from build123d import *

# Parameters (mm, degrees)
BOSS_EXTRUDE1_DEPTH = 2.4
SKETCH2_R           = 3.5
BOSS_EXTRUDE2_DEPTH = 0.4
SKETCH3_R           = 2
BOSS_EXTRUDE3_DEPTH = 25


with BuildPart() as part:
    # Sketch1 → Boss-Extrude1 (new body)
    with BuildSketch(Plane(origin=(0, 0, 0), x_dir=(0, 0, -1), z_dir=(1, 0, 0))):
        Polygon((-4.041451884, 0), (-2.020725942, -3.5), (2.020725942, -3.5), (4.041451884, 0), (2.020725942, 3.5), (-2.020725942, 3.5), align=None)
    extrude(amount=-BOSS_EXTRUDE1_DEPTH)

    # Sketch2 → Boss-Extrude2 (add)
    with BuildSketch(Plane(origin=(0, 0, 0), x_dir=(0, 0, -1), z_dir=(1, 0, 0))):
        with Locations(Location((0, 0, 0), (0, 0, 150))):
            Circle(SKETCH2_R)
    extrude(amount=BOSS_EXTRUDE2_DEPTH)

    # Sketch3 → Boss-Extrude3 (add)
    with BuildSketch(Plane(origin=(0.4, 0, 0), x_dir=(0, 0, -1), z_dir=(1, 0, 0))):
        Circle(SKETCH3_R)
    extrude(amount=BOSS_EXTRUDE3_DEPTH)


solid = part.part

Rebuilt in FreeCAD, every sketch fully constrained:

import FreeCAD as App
import Part
import Sketcher

V = App.Vector
Q = App.Units.Quantity


def add_polygon(sketch, points):
    """Adds a closed chain of lines whose ends are joined by coincident constraints."""
    first, n = sketch.GeometryCount, len(points)
    for a, b in zip(points, points[1:] + points[:1]):
        sketch.addGeometry(Part.LineSegment(App.Vector(*a, 0), App.Vector(*b, 0)), False)
    for i in range(n):
        sketch.addConstraint(Sketcher.Constraint("Coincident", first + i, 2, first + (i + 1) % n, 1))

doc = App.newDocument("Part")
body = doc.addObject("PartDesign::Body", "Body")

# Sketch on YZ plane
sketch1 = doc.addObject("Sketcher::SketchObject", "Sketch")
body.addObject(sketch1)
sketch1.AttachmentSupport = (doc.YZ_Plane, [""])
sketch1.MapMode = "FlatFace"
add_polygon(sketch1, [(0, 4), (-3.5, 2), (-3.5, -2), (0, -4), (3.5, -2), (3.5, 2)])  # lines 0-5
sketch1.addConstraint(Sketcher.Constraint("Vertical", 1))
sketch1.addConstraint(Sketcher.Constraint("Vertical", 4))
sketch1.addConstraint(Sketcher.Constraint("Symmetric", 0, 2, 3, 2, -1, 1))
sketch1.addConstraint(Sketcher.Constraint("Symmetric", 2, 2, 5, 2, -1, 1))
sketch1.addConstraint(Sketcher.Constraint("PointOnObject", 2, 2, -2))
sketch1.addConstraint(Sketcher.Constraint("Parallel", 2, 5))
sketch1.addConstraint(Sketcher.Constraint("Horizontal", 1, 2, 3, 2))
sketch1.addConstraint(Sketcher.Constraint("Angle", 0, Q("-150 deg")))
sketch1.addConstraint(Sketcher.Constraint("DistanceX", 1, 2, 3, 2, 7.0))
sketch1.addConstraint(Sketcher.Constraint("DistanceY", 1, 2, 1, 1, 4.041452))
pad1 = doc.addObject("PartDesign::Pad", "Pad")
body.addObject(pad1)
pad1.Profile = sketch1
pad1.Length = 2.4
pad1.Reversed = True

# Sketch on YZ plane
sketch2 = doc.addObject("Sketcher::SketchObject", "Sketch001")
body.addObject(sketch2)
sketch2.AttachmentSupport = (doc.YZ_Plane, [""])
sketch2.MapMode = "FlatFace"
sketch2.addGeometry(Part.Circle(V(0, 0, 0), V(0, 0, 1), 3.5), False)
sketch2.addConstraint(Sketcher.Constraint("Coincident", 0, 3, -1, 1))
sketch2.addConstraint(Sketcher.Constraint("Diameter", 0, 7.0))
pad2 = doc.addObject("PartDesign::Pad", "Pad001")
body.addObject(pad2)
pad2.Profile = sketch2
pad2.Length = 0.4

# Sketch on YZ plane
sketch3 = doc.addObject("Sketcher::SketchObject", "Sketch002")
body.addObject(sketch3)
sketch3.AttachmentSupport = (doc.YZ_Plane, [""])
sketch3.MapMode = "FlatFace"
sketch3.AttachmentOffset = App.Placement(V(0, 0, 0.4), App.Rotation())
sketch3.addGeometry(Part.Circle(V(0, 0, 0), V(0, 0, 1), 2), False)
sketch3.addConstraint(Sketcher.Constraint("Coincident", 0, 3, -1, 1))
sketch3.addConstraint(Sketcher.Constraint("Diameter", 0, 4.0))
pad3 = doc.addObject("PartDesign::Pad", "Pad002")
body.addObject(pad3)
pad3.Profile = sketch3
pad3.Length = 25

doc.recompute()
